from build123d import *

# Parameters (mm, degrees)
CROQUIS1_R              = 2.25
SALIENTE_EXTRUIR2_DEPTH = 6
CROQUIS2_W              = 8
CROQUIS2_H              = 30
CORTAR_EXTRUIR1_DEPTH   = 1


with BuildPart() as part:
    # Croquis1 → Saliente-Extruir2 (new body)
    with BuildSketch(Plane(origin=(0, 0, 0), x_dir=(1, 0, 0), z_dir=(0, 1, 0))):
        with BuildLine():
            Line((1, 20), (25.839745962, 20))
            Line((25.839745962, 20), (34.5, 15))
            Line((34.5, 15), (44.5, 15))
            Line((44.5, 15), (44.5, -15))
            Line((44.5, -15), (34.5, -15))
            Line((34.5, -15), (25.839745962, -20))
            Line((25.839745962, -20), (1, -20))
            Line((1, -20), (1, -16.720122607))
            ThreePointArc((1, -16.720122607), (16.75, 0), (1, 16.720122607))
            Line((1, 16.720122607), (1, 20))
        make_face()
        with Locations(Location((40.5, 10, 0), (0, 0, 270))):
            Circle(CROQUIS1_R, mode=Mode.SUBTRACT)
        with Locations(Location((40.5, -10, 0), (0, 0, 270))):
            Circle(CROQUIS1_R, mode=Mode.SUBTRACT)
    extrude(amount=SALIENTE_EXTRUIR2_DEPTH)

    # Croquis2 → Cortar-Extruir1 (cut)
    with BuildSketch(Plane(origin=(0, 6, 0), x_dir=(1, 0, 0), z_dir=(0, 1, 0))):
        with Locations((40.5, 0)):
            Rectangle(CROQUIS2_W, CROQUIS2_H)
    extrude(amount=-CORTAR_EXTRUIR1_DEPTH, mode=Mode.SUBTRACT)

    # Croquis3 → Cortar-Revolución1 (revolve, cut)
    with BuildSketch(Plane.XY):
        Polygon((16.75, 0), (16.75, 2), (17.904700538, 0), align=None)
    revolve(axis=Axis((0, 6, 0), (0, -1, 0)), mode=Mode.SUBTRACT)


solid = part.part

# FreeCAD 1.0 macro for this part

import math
import FreeCAD as App
import Part
import Sketcher

V = App.Vector
Q = App.Units.Quantity

doc = App.newDocument("Part")
body = doc.addObject("PartDesign::Body", "Body")

sketch1 = doc.addObject("Sketcher::SketchObject", "Sketch")
body.addObject(sketch1)
sketch1.AttachmentSupport = (doc.XZ_Plane, [""])
sketch1.MapMode = "FlatFace"
sketch1.addGeometry([
    Part.LineSegment(V(25.839746, -20, 0), V(1, -20, 0)),
    Part.LineSegment(V(1, -20, 0), V(1, -16.720123, 0)),
    Part.ArcOfCircle(Part.Circle(V(0, 0, 0), V(0, 0, 1), 16.75), math.radians(-86.577321), math.radians(86.577321)),
    Part.LineSegment(V(1, 16.720123, 0), V(1, 20, 0)),
    Part.LineSegment(V(1, 20, 0), V(25.839746, 20, 0)),
    Part.LineSegment(V(25.839746, 20, 0), V(34.5, 15, 0)),
    Part.LineSegment(V(34.5, 15, 0), V(44.5, 15, 0)),
    Part.LineSegment(V(44.5, 15, 0), V(44.5, -15, 0)),
    Part.LineSegment(V(44.5, -15, 0), V(34.5, -15, 0)),
    Part.LineSegment(V(34.5, -15, 0), V(25.839746, -20, 0)),
    Part.Circle(V(40.5, 10, 0), V(0, 0, 1), 2.25),
    Part.Circle(V(40.5, -10, 0), V(0, 0, 1), 2.25),
], False)
sketch1.addConstraint([
    Sketcher.Constraint("Coincident", 0, 2, 1, 1),
    Sketcher.Constraint("Coincident", 1, 2, 2, 1),
    Sketcher.Constraint("Coincident", 2, 2, 3, 1),
    Sketcher.Constraint("Coincident", 3, 2, 4, 1),
    Sketcher.Constraint("Coincident", 4, 2, 5, 1),
    Sketcher.Constraint("Coincident", 5, 2, 6, 1),
    Sketcher.Constraint("Coincident", 6, 2, 7, 1),
    Sketcher.Constraint("Coincident", 7, 2, 8, 1),
    Sketcher.Constraint("Coincident", 8, 2, 9, 1),
    Sketcher.Constraint("Coincident", 9, 2, 0, 1),
    Sketcher.Constraint("Horizontal", 0),
    Sketcher.Constraint("Vertical", 1),
    Sketcher.Constraint("Vertical", 3),
    Sketcher.Constraint("Horizontal", 4),
    Sketcher.Constraint("Horizontal", 6),
    Sketcher.Constraint("Vertical", 7),
    Sketcher.Constraint("Horizontal", 8),
    Sketcher.Constraint("Coincident", 2, 3, -1, 1),
    Sketcher.Constraint("Equal", 10, 11),
    Sketcher.Constraint("Symmetric", 10, 3, 11, 3, -1),
    Sketcher.Constraint("Symmetric", 0, 2, 3, 2, -1),
    Sketcher.Constraint("Symmetric", 5, 2, 8, 2, -1),
    Sketcher.Constraint("Vertical", 4, 2, 9, 2),
    Sketcher.Constraint("Diameter", 10, Q("4.5 mm")),
    Sketcher.Constraint("DistanceX", 6, 1, 6, 2, Q("10 mm")),
    Sketcher.Constraint("DistanceY", 7, 2, 7, 1, Q("30 mm")),
    Sketcher.Constraint("Angle", 5, Q("-30 deg")),
    Sketcher.Constraint("Radius", 2, Q("16.75 mm")),
    Sketcher.Constraint("Distance", 5, Q("10 mm")),
    Sketcher.Constraint("DistanceY", -1, 1, 10, 3, Q("10 mm")),
    Sketcher.Constraint("DistanceX", -1, 1, 0, 2, Q("1 mm")),
    Sketcher.Constraint("DistanceX", 5, 2, 10, 3, Q("6 mm")),
    Sketcher.Constraint("DistanceX", -1, 1, 10, 3, Q("40.5 mm")),
])
pad1 = doc.addObject("PartDesign::Pad", "Pad")
body.addObject(pad1)
pad1.Profile = sketch1
pad1.Length = 6
pad1.Reversed = True

sketch2 = doc.addObject("Sketcher::SketchObject", "Sketch001")
body.addObject(sketch2)
sketch2.AttachmentSupport = (doc.XZ_Plane, [""])
sketch2.MapMode = "FlatFace"
sketch2.AttachmentOffset = App.Placement(V(0, 0, -6), App.Rotation())
sketch2.addGeometry([
    Part.LineSegment(V(36.5, -15, 0), V(36.5, 15, 0)),
    Part.LineSegment(V(36.5, 15, 0), V(44.5, 15, 0)),
    Part.LineSegment(V(44.5, 15, 0), V(44.5, -15, 0)),
    Part.LineSegment(V(44.5, -15, 0), V(36.5, -15, 0)),
], False)
sketch2.addConstraint([
    Sketcher.Constraint("Coincident", 0, 2, 1, 1),
    Sketcher.Constraint("Coincident", 1, 2, 2, 1),
    Sketcher.Constraint("Coincident", 2, 2, 3, 1),
    Sketcher.Constraint("Coincident", 3, 2, 0, 1),
    Sketcher.Constraint("Vertical", 0),
    Sketcher.Constraint("Horizontal", 1),
    Sketcher.Constraint("Vertical", 2),
    Sketcher.Constraint("Horizontal", 3),
    Sketcher.Constraint("DistanceX", 1, 1, 1, 2, Q("8 mm")),
    Sketcher.Constraint("DistanceY", 0, 1, 0, 2, Q("30 mm")),
    Sketcher.Constraint("DistanceY", -1, 1, 0, 2, Q("15 mm")),
    Sketcher.Constraint("DistanceX", -1, 1, 0, 2, Q("36.5 mm")),
])
pocket1 = doc.addObject("PartDesign::Pocket", "Pocket")
body.addObject(pocket1)
pocket1.Profile = sketch2
pocket1.Length = 1
pocket1.Reversed = True

sketch3 = doc.addObject("Sketcher::SketchObject", "Sketch002")
body.addObject(sketch3)
sketch3.AttachmentSupport = (doc.XY_Plane, [""])
sketch3.MapMode = "FlatFace"
sketch3.addGeometry([
    Part.LineSegment(V(16.75, 2, 0), V(16.75, 0, 0)),
    Part.LineSegment(V(16.75, 0, 0), V(17.904701, 0, 0)),
    Part.LineSegment(V(17.904701, 0, 0), V(16.75, 2, 0)),
], False)
sketch3.addConstraint([
    Sketcher.Constraint("Coincident", 0, 2, 1, 1),
    Sketcher.Constraint("Coincident", 1, 2, 2, 1),
    Sketcher.Constraint("Coincident", 2, 2, 0, 1),
    Sketcher.Constraint("Vertical", 0),
    Sketcher.Constraint("Horizontal", 1),
    Sketcher.Constraint("PointOnObject", 0, 2, -1),
    Sketcher.Constraint("DistanceY", 0, 2, 0, 1, Q("2 mm")),
    Sketcher.Constraint("Angle", 2, Q("120 deg")),
    Sketcher.Constraint("DistanceX", -1, 1, 0, 2, Q("16.75 mm")),
])
groove = doc.addObject("PartDesign::Groove", "Groove")
body.addObject(groove)
groove.Profile = sketch3
groove.ReferenceAxis = (sketch3, ["V_Axis"])
groove.Angle = 360

doc.recompute()
